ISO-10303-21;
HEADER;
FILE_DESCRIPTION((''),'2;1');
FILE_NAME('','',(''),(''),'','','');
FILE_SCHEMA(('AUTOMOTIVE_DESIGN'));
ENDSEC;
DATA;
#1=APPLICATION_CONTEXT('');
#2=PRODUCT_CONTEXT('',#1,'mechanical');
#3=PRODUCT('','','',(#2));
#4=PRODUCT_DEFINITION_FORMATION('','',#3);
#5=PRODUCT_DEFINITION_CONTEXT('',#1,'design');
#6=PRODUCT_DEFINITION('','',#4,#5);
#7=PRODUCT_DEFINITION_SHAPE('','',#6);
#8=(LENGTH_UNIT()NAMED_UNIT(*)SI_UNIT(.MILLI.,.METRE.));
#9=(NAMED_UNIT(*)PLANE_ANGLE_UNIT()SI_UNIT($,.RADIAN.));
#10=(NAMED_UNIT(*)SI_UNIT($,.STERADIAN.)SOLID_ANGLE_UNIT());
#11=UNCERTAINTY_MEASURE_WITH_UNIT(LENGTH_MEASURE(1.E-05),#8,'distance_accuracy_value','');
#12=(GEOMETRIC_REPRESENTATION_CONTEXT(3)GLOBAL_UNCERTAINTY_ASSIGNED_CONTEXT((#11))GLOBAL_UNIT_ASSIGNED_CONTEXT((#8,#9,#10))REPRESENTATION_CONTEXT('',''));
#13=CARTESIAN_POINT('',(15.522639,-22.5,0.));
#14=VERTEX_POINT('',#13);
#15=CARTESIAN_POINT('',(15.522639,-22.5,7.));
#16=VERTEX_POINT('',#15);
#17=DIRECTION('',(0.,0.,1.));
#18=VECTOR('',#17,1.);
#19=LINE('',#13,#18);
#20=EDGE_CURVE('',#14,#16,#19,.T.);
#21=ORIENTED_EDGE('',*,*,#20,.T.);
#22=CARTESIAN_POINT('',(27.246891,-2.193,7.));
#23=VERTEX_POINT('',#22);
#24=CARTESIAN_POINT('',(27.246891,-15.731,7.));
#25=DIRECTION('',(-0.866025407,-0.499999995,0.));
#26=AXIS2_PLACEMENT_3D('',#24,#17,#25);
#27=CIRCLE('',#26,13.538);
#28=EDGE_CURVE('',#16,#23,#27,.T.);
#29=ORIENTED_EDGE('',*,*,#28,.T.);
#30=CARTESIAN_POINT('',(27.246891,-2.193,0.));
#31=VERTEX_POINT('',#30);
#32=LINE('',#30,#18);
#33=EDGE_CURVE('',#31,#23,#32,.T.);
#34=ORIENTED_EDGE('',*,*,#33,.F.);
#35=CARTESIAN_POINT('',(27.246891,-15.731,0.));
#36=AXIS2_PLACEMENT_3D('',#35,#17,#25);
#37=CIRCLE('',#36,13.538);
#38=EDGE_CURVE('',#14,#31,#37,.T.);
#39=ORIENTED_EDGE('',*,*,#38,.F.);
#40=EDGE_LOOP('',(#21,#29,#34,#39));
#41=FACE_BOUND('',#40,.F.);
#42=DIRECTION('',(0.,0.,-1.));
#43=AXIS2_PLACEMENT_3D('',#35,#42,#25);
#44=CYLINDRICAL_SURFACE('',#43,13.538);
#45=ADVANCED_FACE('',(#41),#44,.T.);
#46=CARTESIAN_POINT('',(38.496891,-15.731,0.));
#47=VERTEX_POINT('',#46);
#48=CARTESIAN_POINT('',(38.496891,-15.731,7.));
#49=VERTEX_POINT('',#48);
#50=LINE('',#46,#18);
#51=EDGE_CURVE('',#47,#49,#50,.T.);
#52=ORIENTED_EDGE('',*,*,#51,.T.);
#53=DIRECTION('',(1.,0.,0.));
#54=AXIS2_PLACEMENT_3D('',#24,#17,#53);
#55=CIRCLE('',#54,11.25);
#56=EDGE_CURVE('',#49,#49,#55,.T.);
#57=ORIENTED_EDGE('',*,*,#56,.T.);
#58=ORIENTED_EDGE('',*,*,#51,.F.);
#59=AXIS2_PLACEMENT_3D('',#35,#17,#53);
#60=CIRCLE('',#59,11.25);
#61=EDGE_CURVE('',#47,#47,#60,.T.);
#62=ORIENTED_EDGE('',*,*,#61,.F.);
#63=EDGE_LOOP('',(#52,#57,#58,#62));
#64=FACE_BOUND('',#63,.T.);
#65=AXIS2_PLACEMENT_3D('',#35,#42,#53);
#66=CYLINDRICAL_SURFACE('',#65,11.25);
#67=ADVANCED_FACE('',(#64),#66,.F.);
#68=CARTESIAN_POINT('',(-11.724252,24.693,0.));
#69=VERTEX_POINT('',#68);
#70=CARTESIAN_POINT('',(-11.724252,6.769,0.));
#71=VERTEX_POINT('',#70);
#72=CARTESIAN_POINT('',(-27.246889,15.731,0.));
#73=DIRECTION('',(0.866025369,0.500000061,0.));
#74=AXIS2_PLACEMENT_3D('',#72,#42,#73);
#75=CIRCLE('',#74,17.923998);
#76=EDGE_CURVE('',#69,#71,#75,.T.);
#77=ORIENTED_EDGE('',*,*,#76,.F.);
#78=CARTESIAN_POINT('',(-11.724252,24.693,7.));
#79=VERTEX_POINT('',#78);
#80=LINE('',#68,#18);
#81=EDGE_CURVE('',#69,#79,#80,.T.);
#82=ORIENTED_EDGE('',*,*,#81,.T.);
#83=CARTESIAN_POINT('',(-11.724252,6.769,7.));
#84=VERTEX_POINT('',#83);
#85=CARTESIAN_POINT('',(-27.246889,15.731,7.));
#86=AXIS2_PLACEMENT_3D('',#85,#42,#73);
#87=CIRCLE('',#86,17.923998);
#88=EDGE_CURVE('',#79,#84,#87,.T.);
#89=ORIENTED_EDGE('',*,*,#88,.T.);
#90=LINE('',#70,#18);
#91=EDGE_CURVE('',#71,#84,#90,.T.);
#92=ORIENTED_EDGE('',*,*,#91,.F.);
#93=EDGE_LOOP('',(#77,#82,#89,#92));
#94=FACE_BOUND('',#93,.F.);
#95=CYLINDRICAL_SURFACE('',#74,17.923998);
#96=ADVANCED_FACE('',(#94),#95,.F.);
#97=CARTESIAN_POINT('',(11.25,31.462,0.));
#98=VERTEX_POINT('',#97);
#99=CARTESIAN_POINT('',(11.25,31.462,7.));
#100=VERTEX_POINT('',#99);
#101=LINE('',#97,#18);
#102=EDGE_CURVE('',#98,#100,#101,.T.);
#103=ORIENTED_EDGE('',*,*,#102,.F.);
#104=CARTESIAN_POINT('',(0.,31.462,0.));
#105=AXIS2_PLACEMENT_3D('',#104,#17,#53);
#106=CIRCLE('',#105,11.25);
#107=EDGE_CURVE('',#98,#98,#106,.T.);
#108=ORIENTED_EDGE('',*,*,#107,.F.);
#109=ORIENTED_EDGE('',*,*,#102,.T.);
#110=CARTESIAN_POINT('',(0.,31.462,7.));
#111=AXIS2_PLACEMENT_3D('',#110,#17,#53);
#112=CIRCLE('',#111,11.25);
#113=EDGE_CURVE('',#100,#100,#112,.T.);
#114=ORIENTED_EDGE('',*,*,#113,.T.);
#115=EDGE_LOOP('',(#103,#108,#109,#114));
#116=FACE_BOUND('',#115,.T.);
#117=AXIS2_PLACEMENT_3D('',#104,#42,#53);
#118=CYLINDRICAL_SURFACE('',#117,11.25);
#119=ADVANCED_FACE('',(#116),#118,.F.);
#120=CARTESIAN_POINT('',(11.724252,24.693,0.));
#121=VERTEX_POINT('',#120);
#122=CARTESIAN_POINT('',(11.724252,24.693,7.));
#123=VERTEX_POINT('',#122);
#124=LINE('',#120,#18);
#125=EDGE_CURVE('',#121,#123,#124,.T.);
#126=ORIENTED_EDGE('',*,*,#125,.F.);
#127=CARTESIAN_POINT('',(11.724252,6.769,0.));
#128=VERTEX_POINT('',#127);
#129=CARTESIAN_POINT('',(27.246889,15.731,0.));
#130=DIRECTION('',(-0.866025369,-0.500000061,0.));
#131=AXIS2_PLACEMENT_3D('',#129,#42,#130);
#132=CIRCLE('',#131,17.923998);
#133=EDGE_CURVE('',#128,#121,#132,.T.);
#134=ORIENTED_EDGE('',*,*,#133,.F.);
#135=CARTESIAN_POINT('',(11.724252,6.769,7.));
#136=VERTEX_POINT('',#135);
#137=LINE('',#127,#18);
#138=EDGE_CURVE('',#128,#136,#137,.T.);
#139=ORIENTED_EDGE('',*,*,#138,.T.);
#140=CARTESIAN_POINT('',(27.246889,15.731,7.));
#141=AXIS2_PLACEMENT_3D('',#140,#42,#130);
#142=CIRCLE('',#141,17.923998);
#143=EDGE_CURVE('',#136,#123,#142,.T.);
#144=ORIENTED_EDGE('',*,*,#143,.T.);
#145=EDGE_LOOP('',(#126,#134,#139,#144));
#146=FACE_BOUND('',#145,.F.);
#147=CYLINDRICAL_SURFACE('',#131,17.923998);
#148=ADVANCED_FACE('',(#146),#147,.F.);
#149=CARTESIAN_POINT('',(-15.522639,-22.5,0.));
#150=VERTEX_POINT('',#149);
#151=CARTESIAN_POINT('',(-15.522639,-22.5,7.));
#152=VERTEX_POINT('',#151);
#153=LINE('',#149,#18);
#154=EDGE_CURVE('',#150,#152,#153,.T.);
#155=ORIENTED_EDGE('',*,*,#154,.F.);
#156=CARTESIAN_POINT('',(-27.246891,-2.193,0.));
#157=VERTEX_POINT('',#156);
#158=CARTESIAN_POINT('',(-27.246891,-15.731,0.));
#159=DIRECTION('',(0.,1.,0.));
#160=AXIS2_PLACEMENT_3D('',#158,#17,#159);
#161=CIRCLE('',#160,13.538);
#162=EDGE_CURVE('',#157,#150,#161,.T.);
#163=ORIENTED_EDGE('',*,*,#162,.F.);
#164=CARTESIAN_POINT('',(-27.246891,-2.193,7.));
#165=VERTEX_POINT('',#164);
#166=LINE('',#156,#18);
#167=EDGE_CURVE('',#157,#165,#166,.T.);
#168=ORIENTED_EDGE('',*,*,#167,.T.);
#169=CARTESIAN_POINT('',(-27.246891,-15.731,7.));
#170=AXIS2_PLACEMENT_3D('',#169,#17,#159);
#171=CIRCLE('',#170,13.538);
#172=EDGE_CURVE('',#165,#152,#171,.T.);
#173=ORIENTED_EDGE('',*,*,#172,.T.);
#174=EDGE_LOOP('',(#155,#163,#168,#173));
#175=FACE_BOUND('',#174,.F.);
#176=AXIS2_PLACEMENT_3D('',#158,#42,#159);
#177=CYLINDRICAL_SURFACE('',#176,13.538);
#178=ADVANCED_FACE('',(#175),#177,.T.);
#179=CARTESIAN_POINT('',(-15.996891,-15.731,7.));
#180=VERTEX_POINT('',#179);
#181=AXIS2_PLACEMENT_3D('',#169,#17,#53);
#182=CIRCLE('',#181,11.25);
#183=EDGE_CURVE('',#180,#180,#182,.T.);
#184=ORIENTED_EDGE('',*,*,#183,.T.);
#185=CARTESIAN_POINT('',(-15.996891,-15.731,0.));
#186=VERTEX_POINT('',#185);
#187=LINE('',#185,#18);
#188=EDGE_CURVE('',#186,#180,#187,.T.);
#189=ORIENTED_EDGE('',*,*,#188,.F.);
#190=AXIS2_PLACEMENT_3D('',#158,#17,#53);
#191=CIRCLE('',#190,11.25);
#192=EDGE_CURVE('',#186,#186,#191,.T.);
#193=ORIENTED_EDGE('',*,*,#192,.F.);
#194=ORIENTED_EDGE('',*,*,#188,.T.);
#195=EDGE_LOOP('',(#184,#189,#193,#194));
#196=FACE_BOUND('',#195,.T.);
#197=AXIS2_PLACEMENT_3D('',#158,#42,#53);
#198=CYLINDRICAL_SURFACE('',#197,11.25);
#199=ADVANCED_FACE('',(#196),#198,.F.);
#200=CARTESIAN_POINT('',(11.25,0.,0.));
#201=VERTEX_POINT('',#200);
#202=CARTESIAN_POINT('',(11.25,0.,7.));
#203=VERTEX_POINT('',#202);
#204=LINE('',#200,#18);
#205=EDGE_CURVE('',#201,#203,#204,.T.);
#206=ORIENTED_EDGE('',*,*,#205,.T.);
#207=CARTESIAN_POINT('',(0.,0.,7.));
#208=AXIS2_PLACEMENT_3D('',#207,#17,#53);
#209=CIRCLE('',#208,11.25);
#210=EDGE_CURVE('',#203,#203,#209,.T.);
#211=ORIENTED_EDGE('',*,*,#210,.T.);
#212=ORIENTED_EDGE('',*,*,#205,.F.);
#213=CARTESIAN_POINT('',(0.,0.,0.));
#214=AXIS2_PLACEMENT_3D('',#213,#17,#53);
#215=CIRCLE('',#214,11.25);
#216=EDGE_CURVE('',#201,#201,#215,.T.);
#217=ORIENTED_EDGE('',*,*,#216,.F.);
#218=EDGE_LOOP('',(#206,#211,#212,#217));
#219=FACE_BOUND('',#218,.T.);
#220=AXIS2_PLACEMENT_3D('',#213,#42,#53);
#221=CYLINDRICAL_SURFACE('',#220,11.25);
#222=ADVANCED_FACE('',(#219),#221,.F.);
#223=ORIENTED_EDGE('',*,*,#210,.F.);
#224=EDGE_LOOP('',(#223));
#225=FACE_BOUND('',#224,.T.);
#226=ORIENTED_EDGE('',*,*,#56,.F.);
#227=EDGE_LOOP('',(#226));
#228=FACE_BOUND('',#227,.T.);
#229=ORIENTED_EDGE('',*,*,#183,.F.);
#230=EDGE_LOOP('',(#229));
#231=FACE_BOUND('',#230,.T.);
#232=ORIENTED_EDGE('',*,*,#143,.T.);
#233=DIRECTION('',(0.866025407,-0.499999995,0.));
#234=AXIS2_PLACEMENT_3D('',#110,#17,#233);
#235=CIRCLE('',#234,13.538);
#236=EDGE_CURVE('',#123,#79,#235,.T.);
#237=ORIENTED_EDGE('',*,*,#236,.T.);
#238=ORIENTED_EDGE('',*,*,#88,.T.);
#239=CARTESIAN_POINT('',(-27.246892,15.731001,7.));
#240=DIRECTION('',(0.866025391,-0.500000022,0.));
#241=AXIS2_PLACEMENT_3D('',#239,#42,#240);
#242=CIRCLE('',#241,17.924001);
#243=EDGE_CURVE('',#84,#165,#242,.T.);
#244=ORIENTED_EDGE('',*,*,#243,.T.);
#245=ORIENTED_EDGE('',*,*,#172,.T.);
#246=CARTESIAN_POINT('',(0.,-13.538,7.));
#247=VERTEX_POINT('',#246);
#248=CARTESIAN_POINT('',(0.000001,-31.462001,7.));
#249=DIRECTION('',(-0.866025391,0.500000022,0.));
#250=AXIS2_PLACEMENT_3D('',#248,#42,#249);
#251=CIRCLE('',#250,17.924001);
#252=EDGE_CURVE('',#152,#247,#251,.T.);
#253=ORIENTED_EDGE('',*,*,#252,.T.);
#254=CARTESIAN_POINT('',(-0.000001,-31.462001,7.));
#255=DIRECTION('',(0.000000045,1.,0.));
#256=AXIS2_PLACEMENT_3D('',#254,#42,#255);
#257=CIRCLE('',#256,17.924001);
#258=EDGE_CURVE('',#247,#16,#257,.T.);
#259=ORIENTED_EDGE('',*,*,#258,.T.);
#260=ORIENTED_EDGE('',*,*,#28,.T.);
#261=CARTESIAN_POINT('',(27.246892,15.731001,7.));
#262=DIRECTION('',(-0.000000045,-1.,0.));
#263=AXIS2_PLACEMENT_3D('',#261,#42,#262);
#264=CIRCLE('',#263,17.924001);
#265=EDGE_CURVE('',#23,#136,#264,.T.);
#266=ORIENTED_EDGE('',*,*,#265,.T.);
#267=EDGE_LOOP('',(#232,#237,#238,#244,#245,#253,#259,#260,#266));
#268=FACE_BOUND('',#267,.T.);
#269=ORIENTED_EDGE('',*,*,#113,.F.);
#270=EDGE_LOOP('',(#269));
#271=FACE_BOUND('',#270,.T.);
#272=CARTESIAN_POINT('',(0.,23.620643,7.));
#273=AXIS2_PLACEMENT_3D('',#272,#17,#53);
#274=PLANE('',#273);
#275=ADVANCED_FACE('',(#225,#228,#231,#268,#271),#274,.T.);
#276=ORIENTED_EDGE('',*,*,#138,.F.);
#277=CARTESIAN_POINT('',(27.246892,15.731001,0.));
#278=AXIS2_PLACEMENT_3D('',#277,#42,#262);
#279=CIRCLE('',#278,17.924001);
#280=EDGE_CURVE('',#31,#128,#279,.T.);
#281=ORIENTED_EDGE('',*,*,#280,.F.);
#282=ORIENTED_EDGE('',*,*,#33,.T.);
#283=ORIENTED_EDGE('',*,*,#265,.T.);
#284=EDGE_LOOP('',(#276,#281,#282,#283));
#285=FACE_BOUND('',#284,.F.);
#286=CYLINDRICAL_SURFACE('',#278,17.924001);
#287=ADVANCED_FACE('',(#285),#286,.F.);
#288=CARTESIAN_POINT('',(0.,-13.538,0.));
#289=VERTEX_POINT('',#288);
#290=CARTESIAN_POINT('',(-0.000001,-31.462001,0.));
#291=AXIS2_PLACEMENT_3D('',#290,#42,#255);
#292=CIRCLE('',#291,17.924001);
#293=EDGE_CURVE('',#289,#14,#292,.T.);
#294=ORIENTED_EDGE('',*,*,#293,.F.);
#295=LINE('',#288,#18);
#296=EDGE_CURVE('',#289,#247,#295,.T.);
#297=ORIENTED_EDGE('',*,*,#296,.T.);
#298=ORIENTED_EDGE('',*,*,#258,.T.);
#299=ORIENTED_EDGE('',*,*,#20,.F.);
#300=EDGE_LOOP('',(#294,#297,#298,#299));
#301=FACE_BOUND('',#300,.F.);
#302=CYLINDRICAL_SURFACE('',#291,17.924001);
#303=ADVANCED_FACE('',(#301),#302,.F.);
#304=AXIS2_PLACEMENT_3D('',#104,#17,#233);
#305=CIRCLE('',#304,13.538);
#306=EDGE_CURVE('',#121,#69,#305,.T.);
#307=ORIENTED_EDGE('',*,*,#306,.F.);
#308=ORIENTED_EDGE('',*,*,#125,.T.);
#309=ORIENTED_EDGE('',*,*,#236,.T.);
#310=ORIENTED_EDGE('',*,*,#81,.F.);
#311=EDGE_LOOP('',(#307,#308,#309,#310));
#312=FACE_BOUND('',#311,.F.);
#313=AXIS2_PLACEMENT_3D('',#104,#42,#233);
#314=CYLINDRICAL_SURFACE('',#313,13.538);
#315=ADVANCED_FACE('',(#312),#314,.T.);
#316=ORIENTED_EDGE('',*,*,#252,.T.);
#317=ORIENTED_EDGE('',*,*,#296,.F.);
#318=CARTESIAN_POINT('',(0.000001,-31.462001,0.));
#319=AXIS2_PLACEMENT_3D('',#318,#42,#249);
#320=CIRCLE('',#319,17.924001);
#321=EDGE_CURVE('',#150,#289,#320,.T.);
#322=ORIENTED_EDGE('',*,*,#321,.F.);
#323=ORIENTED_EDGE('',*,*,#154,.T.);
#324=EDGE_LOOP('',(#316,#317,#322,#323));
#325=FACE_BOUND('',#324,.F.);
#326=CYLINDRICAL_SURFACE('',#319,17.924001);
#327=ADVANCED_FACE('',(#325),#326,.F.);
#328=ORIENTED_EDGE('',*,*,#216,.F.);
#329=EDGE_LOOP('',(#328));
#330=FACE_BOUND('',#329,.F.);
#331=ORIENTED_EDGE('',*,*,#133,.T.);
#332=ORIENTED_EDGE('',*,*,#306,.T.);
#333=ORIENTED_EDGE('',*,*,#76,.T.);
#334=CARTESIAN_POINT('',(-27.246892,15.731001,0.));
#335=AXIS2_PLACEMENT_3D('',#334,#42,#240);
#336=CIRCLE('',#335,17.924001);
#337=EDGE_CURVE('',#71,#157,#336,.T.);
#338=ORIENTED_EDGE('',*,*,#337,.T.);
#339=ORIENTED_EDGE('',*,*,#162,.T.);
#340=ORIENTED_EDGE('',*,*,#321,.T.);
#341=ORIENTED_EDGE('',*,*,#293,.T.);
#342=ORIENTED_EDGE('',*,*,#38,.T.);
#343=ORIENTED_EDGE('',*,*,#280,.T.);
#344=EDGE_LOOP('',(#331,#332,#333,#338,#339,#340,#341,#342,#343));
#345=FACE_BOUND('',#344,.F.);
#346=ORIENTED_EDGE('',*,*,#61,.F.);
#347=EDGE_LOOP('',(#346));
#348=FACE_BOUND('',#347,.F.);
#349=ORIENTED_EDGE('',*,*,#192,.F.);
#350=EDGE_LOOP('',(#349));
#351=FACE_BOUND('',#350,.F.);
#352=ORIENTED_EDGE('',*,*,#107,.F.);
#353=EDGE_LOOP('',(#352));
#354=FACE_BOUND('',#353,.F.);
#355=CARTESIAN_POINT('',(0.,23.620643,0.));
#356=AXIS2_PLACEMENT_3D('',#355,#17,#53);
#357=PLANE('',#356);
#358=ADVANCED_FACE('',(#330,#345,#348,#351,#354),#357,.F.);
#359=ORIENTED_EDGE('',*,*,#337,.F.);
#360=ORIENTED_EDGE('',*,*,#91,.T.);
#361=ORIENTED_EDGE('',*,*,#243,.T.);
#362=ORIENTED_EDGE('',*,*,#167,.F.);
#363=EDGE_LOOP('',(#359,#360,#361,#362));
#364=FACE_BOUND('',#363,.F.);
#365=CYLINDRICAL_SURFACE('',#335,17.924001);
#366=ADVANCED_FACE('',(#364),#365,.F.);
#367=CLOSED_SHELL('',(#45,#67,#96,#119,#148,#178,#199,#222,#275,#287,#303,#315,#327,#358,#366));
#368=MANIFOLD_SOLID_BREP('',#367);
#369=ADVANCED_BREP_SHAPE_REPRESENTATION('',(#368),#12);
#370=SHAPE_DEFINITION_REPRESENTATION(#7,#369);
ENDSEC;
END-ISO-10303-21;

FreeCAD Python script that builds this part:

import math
import FreeCAD as App
import Part
import Sketcher

V = App.Vector

doc = App.newDocument("Part")
body = doc.addObject("PartDesign::Body", "Body")

sketch1 = doc.addObject("Sketcher::SketchObject", "Sketch")
body.addObject(sketch1)
sketch1.AttachmentSupport = (doc.XY_Plane, [""])
sketch1.MapMode = "FlatFace"
sketch1.addGeometry([
    Part.ArcOfCircle(Part.Circle(V(27, 16, 0), V(0, 0, 1), 18), math.radians(150), math.radians(210)),
    Part.ArcOfCircle(Part.Circle(V(0, 31, 0), V(0, 0, 1), 14), math.radians(-30), math.radians(210)),
    Part.ArcOfCircle(Part.Circle(V(-27, 16, 0), V(0, 0, 1), 18), math.radians(-30), math.radians(30)),
    Part.ArcOfCircle(Part.Circle(V(-27, 16, 0), V(0, 0, 1), 18), math.radians(-90), math.radians(-30)),
    Part.ArcOfCircle(Part.Circle(V(-27, -16, 0), V(0, 0, 1), 14), math.radians(90), math.radians(330)),
    Part.ArcOfCircle(Part.Circle(V(0, -31, 0), V(0, 0, 1), 18), math.radians(90), math.radians(150)),
    Part.ArcOfCircle(Part.Circle(V(0, -31, 0), V(0, 0, 1), 18), math.radians(30), math.radians(90)),
    Part.ArcOfCircle(Part.Circle(V(27, -16, 0), V(0, 0, 1), 14), math.radians(-150), math.radians(90)),
    Part.ArcOfCircle(Part.Circle(V(27, 16, 0), V(0, 0, 1), 18), math.radians(-150), math.radians(-90)),
    Part.Circle(V(-27, -16, 0), V(0, 0, 1), 11),
    Part.Circle(V(27, -16, 0), V(0, 0, 1), 11),
    Part.Circle(V(0, 0, 0), V(0, 0, 1), 11),
    Part.Circle(V(0, 31, 0), V(0, 0, 1), 11),
], False)
sketch1.addConstraint([
    Sketcher.Constraint("Tangent", 0, 1, 1, 1),
    Sketcher.Constraint("Tangent", 1, 2, 2, 2),
    Sketcher.Constraint("Tangent", 2, 1, 3, 2),
    Sketcher.Constraint("Tangent", 3, 1, 4, 1),
    Sketcher.Constraint("Tangent", 4, 2, 5, 2),
    Sketcher.Constraint("Tangent", 5, 1, 6, 2),
    Sketcher.Constraint("Tangent", 6, 1, 7, 1),
    Sketcher.Constraint("Tangent", 7, 2, 8, 2),
    Sketcher.Constraint("Tangent", 8, 1, 0, 2),
    Sketcher.Constraint("Coincident", 11, 3, -1, 1),
    Sketcher.Constraint("Coincident", 9, 3, 4, 3),
    Sketcher.Constraint("Coincident", 10, 3, 7, 3),
    Sketcher.Constraint("Coincident", 12, 3, 1, 3),
    Sketcher.Constraint("Equal", 0, 2),
    Sketcher.Constraint("Equal", 1, 4),
    Sketcher.Constraint("Equal", 3, 5),
    Sketcher.Constraint("Equal", 5, 6),
    Sketcher.Constraint("Equal", 4, 7),
    Sketcher.Constraint("Equal", 6, 8),
    Sketcher.Constraint("Equal", 9, 10),
    Sketcher.Constraint("Equal", 10, 11),
    Sketcher.Constraint("Equal", 11, 12),
    Sketcher.Constraint("Symmetric", 0, 3, 4, 3, -1, 1),
    Sketcher.Constraint("Symmetric", 1, 3, 5, 3, -1, 1),
    Sketcher.Constraint("Symmetric", 0, 3, 2, 3, -2),
    Sketcher.Constraint("PointOnObject", 5, 1, -2),
    Sketcher.Constraint("Horizontal", 2, 1, 8, 1),
    Sketcher.Constraint("Vertical", 1, 2, 2, 1),
    Sketcher.Constraint("Diameter", 9, 22.5),
    Sketcher.Constraint("Radius", 1, 13.538),
    Sketcher.Constraint("Radius", 3, 17.924001),
    Sketcher.Constraint("DistanceY", 4, 2, -1, 1, 22.5),
])
pad1 = doc.addObject("PartDesign::Pad", "Pad")
body.addObject(pad1)
pad1.Profile = sketch1
pad1.Length = 7

doc.recompute()
